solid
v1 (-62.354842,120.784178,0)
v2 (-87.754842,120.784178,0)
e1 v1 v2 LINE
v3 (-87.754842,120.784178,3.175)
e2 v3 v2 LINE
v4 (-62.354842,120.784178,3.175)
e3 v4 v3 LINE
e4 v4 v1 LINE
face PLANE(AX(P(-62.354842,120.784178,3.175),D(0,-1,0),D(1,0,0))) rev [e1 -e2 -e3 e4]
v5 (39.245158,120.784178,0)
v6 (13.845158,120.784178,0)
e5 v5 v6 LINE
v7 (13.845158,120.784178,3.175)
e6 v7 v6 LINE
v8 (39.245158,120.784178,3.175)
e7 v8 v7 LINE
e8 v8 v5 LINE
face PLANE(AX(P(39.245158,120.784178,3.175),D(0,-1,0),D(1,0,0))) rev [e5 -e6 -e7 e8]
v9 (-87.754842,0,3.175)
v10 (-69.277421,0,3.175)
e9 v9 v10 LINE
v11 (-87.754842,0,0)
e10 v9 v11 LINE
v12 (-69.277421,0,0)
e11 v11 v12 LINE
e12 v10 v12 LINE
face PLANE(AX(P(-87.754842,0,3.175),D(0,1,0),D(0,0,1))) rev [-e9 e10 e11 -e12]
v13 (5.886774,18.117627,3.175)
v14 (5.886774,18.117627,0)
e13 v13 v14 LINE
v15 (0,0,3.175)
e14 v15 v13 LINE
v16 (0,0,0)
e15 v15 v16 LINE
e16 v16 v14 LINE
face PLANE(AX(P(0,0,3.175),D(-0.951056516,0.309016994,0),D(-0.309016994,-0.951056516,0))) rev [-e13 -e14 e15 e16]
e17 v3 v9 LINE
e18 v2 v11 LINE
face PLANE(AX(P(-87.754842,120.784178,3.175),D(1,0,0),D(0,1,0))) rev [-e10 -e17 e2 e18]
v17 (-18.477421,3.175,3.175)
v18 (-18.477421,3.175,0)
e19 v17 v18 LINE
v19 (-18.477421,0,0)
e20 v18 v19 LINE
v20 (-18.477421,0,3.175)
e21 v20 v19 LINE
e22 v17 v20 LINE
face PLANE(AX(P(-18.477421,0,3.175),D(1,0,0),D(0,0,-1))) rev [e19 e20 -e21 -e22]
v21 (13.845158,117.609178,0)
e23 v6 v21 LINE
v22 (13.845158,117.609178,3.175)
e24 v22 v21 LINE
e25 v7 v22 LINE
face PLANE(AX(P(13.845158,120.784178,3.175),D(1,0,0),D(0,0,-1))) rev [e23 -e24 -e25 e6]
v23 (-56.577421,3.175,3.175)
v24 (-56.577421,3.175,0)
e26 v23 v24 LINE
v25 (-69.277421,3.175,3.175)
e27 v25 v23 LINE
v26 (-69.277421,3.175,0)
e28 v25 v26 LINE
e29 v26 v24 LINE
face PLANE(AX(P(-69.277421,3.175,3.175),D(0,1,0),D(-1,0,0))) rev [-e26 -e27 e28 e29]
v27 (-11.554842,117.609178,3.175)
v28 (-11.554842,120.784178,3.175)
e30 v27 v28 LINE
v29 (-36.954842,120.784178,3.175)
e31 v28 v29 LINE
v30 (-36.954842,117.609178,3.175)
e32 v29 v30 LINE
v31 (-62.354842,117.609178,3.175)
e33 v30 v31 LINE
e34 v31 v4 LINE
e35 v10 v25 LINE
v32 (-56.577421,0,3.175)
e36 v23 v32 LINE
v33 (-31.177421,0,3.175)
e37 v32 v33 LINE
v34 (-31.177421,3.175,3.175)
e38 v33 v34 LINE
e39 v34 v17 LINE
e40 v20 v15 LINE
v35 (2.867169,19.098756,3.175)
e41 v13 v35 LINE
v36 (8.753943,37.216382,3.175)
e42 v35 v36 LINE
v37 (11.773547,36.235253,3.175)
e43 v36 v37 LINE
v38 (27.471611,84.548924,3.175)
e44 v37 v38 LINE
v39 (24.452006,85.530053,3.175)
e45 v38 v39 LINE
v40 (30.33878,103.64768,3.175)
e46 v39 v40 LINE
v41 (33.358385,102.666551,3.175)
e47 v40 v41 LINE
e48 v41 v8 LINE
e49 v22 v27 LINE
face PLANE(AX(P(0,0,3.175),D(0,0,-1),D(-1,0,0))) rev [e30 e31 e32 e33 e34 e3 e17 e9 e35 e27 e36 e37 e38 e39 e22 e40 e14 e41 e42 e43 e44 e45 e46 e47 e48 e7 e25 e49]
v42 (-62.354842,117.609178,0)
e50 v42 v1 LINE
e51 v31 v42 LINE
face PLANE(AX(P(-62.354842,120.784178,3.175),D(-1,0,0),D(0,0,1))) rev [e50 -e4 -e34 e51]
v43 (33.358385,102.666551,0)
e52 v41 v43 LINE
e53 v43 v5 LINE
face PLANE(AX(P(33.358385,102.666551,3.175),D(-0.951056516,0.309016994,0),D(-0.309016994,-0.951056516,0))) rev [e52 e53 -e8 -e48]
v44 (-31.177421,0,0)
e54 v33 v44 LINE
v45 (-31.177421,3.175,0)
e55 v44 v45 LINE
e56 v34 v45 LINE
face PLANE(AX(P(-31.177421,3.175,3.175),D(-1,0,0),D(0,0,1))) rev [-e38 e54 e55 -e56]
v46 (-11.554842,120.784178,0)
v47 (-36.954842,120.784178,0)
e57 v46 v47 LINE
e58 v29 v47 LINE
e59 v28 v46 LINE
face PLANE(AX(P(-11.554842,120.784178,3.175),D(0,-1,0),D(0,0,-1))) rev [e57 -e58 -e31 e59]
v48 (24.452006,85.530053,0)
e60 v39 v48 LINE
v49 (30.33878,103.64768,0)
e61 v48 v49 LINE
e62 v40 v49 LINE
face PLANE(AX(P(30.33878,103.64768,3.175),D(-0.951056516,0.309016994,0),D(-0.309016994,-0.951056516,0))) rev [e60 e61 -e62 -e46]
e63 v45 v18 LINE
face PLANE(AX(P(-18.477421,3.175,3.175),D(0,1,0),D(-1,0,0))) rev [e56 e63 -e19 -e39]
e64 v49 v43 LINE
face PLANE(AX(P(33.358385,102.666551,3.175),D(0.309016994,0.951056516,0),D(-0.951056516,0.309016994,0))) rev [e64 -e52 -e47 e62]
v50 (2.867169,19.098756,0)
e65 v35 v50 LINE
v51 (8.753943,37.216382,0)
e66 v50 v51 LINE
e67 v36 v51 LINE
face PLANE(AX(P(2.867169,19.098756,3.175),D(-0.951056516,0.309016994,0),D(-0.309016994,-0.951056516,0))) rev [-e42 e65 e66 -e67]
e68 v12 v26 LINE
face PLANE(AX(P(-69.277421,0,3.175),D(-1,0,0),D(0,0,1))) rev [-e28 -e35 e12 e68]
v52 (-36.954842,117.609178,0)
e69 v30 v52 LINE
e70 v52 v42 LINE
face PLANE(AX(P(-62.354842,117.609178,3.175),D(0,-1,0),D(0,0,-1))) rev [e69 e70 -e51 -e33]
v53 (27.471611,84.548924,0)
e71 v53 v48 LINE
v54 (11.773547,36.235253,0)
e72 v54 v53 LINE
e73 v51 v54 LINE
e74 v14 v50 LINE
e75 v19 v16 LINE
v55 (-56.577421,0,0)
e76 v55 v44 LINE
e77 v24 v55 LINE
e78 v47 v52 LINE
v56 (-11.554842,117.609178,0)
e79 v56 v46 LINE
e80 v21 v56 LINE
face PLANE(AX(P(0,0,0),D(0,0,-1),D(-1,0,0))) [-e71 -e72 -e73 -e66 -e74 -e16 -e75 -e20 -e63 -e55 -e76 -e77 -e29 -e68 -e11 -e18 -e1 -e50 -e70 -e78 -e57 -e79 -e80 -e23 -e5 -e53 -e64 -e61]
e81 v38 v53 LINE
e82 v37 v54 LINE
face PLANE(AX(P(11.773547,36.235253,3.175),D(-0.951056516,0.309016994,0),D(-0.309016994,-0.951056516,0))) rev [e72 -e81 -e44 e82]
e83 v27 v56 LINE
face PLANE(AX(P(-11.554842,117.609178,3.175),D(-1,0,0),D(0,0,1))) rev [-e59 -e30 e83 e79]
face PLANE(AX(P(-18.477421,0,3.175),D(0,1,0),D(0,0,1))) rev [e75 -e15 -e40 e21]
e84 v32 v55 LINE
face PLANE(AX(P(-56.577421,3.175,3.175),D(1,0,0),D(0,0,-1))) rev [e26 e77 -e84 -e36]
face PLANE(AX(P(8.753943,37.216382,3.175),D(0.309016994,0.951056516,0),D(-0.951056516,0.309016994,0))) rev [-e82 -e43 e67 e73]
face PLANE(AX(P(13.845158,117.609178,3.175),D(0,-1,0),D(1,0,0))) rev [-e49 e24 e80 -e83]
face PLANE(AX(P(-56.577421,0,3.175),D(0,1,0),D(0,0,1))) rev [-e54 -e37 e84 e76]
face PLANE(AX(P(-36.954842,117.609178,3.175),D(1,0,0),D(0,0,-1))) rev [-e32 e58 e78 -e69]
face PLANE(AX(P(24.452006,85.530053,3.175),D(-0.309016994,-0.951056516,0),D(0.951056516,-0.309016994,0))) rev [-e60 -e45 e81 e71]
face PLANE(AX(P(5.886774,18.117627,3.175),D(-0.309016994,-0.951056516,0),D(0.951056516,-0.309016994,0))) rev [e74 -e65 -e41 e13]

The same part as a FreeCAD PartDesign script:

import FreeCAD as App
import Part
import Sketcher
Q = App.Units.Quantity


def add_polygon(sketch, points):
    """Adds a closed chain of lines whose ends are joined by coincident constraints."""
    first, n = sketch.GeometryCount, len(points)
    for a, b in zip(points, points[1:] + points[:1]):
        sketch.addGeometry(Part.LineSegment(App.Vector(*a, 0), App.Vector(*b, 0)), False)
    for i in range(n):
        sketch.addConstraint(Sketcher.Constraint("Coincident", first + i, 2, first + (i + 1) % n, 1))

doc = App.newDocument("Part")
params = doc.addObject("Spreadsheet::Sheet", "Params")
for row, (alias, value) in enumerate([
    ("sketch1_width", "1 in"),
    ("sketch1_length", "2 in"),
    ("sketch1_width2", "0.5 in"),
    ("sketch1_length2", "0.75 in"),
    ("sketch1_height", "0.125 in"),
    ("pad1_length", "0.125 in"),
], start=1):
    params.set(f"A{row}", alias)
    params.set(f"B{row}", "=" + value)
    params.setAlias(f"B{row}", alias)

body = doc.addObject("PartDesign::Body", "Body")

# Sketch on XY plane
sketch1 = doc.addObject("Sketcher::SketchObject", "Sketch")
body.addObject(sketch1)
sketch1.AttachmentSupport = (doc.XY_Plane, [""])
sketch1.MapMode = "FlatFace"
add_polygon(sketch1, [(0, 0), (5.886774, 18.117627), (2.867169, 19.098756), (8.753943, 37.216382), (11.773547, 36.235253), (27.471611, 84.548924), (24.452006, 85.530053), (30.33878, 103.64768), (33.358385, 102.666551), (39.245158, 120.784178), (13.845158, 120.784178), (13.845158, 117.609178), (-11.554842, 117.609178), (-11.554842, 120.784178), (-36.954842, 120.784178), (-36.954842, 117.609178), (-62.354842, 117.609178), (-62.354842, 120.784178), (-87.754842, 120.784178), (-87.754842, 0), (-69.277421, 0), (-69.277421, 3.175), (-56.577421, 3.175), (-56.577421, 0), (-31.177421, 0), (-31.177421, 3.175), (-18.477421, 3.175), (-18.477421, 0)])  # lines 0-27
sketch1.addConstraint([
    Sketcher.Constraint("Horizontal", 9),
    Sketcher.Constraint("Vertical", 10),
    Sketcher.Constraint("Horizontal", 11),
    Sketcher.Constraint("Vertical", 12),
    Sketcher.Constraint("Horizontal", 13),
    Sketcher.Constraint("Vertical", 14),
    Sketcher.Constraint("Horizontal", 15),
    Sketcher.Constraint("Vertical", 16),
    Sketcher.Constraint("Horizontal", 17),
    Sketcher.Constraint("Vertical", 18),
    Sketcher.Constraint("Horizontal", 19),
    Sketcher.Constraint("Vertical", 20),
    Sketcher.Constraint("Horizontal", 21),
    Sketcher.Constraint("Vertical", 22),
    Sketcher.Constraint("Horizontal", 23),
    Sketcher.Constraint("Vertical", 24),
    Sketcher.Constraint("Horizontal", 25),
    Sketcher.Constraint("Vertical", 26),
    Sketcher.Constraint("Horizontal", 27),
    Sketcher.Constraint("Coincident", 27, 2, -1, 1),
    Sketcher.Constraint("PointOnObject", 18, 2, -1),
    Sketcher.Constraint("PointOnObject", 22, 2, -1),
    Sketcher.Constraint("Perpendicular", 0, 1),
    Sketcher.Constraint("Perpendicular", 1, 2),
    Sketcher.Constraint("Perpendicular", 2, 3),
    Sketcher.Constraint("Perpendicular", 3, 4),
    Sketcher.Constraint("Perpendicular", 4, 5),
    Sketcher.Constraint("Perpendicular", 5, 6),
    Sketcher.Constraint("Perpendicular", 6, 7),
    Sketcher.Constraint("Perpendicular", 7, 8),
    Sketcher.Constraint("Horizontal", 9, 2, 12, 2),
    Sketcher.Constraint("Horizontal", 11, 2, 14, 2),
    Sketcher.Constraint("Horizontal", 13, 2, 16, 2),
    Sketcher.Constraint("Horizontal", 21, 2, 24, 2),
    Sketcher.Constraint("Equal", 9, 11),
    Sketcher.Constraint("Equal", 11, 13),
    Sketcher.Constraint("Equal", 13, 15),
    Sketcher.Constraint("Equal", 15, 17),
    Sketcher.Constraint("Equal", 17, 23),
    Sketcher.Constraint("Equal", 21, 25),
    Sketcher.Constraint("Equal", 19, 27),
    Sketcher.Constraint("Equal", 16, 20),
    Sketcher.Constraint("Equal", 0, 2),
    Sketcher.Constraint("Equal", 1, 3),
    Sketcher.Constraint("Equal", 3, 5),
    Sketcher.Constraint("Equal", 2, 6),
    Sketcher.Constraint("Equal", 5, 7),
    Sketcher.Constraint("Equal", 6, 8),
    Sketcher.Constraint("DistanceX", 9, 2, 9, 1, Q("1 in")),
    Sketcher.Constraint("Distance", 4, Q("2 in")),
    Sketcher.Constraint("DistanceX", 21, 1, 21, 2, Q("0.5 in")),
    Sketcher.Constraint("Angle", 0, Q("72 deg")),
    Sketcher.Constraint("Distance", 0, Q("0.75 in")),
    Sketcher.Constraint("DistanceY", 10, 2, 10, 1, Q("0.125 in")),
    Sketcher.Constraint("Distance", 1, Q("0.125 in")),
])
sketch1.setExpression("Constraints[76]", "Params.sketch1_width")
sketch1.setExpression("Constraints[77]", "Params.sketch1_length")
sketch1.setExpression("Constraints[78]", "Params.sketch1_width2")
sketch1.setExpression("Constraints[80]", "Params.sketch1_length2")
sketch1.setExpression("Constraints[81]", "Params.sketch1_height")
pad1 = doc.addObject("PartDesign::Pad", "Pad")
body.addObject(pad1)
pad1.Profile = sketch1
pad1.setExpression("Length", "Params.pad1_length")

doc.recompute()
